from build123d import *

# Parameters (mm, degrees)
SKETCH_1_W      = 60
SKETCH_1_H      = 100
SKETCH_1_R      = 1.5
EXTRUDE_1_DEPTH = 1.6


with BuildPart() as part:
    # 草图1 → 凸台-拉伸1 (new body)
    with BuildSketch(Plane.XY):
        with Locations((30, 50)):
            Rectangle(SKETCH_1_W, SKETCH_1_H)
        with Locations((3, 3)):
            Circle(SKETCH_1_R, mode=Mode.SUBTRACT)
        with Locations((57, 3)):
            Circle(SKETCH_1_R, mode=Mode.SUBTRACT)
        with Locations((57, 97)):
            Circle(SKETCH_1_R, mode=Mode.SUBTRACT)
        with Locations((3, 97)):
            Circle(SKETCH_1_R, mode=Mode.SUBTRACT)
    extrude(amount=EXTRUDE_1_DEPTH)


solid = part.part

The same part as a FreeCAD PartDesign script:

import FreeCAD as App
import Part
import Sketcher
Q = App.Units.Quantity


def add_polygon(sketch, points):
    """Adds a closed chain of lines whose ends are joined by coincident constraints."""
    first, n = sketch.GeometryCount, len(points)
    for a, b in zip(points, points[1:] + points[:1]):
        sketch.addGeometry(Part.LineSegment(App.Vector(*a, 0), App.Vector(*b, 0)), False)
    for i in range(n):
        sketch.addConstraint(Sketcher.Constraint("Coincident", first + i, 2, first + (i + 1) % n, 1))

doc = App.newDocument("Part")
body = doc.addObject("PartDesign::Body", "Body")

sketch1 = body.newObject("Sketcher::SketchObject", "Sketch")
sketch1.AttachmentSupport = (doc.getObject("XY_Plane"), [""])
sketch1.MapMode = "FlatFace"
add_polygon(sketch1, [(0, 100), (0, 0), (60, 0), (60, 100)])
sketch1.addGeometry(Part.Circle(App.Vector(3, 3, 0), App.Vector(0, 0, 1), 1.5), False)
sketch1.addGeometry(Part.Circle(App.Vector(57, 3, 0), App.Vector(0, 0, 1), 1.5), False)
sketch1.addGeometry(Part.Circle(App.Vector(3, 97, 0), App.Vector(0, 0, 1), 1.5), False)
sketch1.addGeometry(Part.Circle(App.Vector(57, 97, 0), App.Vector(0, 0, 1), 1.5), False)
sketch1.addConstraint(Sketcher.Constraint("Vertical", 0))
sketch1.addConstraint(Sketcher.Constraint("Horizontal", 1))
sketch1.addConstraint(Sketcher.Constraint("Vertical", 2))
sketch1.addConstraint(Sketcher.Constraint("Horizontal", 3))
sketch1.addConstraint(Sketcher.Constraint("Coincident", 0, 2, -1, 1))
sketch1.addConstraint(Sketcher.Constraint("Equal", 4, 5))
sketch1.addConstraint(Sketcher.Constraint("Equal", 5, 6))
sketch1.addConstraint(Sketcher.Constraint("Equal", 6, 7))
sketch1.addConstraint(Sketcher.Constraint("Horizontal", 4, 3, 5, 3))
sketch1.addConstraint(Sketcher.Constraint("Horizontal", 6, 3, 7, 3))
sketch1.addConstraint(Sketcher.Constraint("Vertical", 4, 3, 6, 3))
sketch1.addConstraint(Sketcher.Constraint("Vertical", 5, 3, 7, 3))
sketch1.addConstraint(Sketcher.Constraint("Diameter", 4, Q("3 mm")))
sketch1.addConstraint(Sketcher.Constraint("DistanceX", 1, 1, 1, 2, Q("60 mm")))
sketch1.addConstraint(Sketcher.Constraint("DistanceY", 0, 2, 0, 1, Q("100 mm")))
sketch1.addConstraint(Sketcher.Constraint("DistanceX", -1, 1, 4, 3, Q("3 mm")))
sketch1.addConstraint(Sketcher.Constraint("DistanceY", -1, 1, 4, 3, Q("3 mm")))
sketch1.addConstraint(Sketcher.Constraint("DistanceX", -1, 1, 5, 3, Q("57 mm")))
sketch1.addConstraint(Sketcher.Constraint("DistanceY", -1, 1, 6, 3, Q("97 mm")))
pad1 = body.newObject("PartDesign::Pad", "Pad")
pad1.Profile = sketch1
pad1.Length = 1.6

doc.recompute()
